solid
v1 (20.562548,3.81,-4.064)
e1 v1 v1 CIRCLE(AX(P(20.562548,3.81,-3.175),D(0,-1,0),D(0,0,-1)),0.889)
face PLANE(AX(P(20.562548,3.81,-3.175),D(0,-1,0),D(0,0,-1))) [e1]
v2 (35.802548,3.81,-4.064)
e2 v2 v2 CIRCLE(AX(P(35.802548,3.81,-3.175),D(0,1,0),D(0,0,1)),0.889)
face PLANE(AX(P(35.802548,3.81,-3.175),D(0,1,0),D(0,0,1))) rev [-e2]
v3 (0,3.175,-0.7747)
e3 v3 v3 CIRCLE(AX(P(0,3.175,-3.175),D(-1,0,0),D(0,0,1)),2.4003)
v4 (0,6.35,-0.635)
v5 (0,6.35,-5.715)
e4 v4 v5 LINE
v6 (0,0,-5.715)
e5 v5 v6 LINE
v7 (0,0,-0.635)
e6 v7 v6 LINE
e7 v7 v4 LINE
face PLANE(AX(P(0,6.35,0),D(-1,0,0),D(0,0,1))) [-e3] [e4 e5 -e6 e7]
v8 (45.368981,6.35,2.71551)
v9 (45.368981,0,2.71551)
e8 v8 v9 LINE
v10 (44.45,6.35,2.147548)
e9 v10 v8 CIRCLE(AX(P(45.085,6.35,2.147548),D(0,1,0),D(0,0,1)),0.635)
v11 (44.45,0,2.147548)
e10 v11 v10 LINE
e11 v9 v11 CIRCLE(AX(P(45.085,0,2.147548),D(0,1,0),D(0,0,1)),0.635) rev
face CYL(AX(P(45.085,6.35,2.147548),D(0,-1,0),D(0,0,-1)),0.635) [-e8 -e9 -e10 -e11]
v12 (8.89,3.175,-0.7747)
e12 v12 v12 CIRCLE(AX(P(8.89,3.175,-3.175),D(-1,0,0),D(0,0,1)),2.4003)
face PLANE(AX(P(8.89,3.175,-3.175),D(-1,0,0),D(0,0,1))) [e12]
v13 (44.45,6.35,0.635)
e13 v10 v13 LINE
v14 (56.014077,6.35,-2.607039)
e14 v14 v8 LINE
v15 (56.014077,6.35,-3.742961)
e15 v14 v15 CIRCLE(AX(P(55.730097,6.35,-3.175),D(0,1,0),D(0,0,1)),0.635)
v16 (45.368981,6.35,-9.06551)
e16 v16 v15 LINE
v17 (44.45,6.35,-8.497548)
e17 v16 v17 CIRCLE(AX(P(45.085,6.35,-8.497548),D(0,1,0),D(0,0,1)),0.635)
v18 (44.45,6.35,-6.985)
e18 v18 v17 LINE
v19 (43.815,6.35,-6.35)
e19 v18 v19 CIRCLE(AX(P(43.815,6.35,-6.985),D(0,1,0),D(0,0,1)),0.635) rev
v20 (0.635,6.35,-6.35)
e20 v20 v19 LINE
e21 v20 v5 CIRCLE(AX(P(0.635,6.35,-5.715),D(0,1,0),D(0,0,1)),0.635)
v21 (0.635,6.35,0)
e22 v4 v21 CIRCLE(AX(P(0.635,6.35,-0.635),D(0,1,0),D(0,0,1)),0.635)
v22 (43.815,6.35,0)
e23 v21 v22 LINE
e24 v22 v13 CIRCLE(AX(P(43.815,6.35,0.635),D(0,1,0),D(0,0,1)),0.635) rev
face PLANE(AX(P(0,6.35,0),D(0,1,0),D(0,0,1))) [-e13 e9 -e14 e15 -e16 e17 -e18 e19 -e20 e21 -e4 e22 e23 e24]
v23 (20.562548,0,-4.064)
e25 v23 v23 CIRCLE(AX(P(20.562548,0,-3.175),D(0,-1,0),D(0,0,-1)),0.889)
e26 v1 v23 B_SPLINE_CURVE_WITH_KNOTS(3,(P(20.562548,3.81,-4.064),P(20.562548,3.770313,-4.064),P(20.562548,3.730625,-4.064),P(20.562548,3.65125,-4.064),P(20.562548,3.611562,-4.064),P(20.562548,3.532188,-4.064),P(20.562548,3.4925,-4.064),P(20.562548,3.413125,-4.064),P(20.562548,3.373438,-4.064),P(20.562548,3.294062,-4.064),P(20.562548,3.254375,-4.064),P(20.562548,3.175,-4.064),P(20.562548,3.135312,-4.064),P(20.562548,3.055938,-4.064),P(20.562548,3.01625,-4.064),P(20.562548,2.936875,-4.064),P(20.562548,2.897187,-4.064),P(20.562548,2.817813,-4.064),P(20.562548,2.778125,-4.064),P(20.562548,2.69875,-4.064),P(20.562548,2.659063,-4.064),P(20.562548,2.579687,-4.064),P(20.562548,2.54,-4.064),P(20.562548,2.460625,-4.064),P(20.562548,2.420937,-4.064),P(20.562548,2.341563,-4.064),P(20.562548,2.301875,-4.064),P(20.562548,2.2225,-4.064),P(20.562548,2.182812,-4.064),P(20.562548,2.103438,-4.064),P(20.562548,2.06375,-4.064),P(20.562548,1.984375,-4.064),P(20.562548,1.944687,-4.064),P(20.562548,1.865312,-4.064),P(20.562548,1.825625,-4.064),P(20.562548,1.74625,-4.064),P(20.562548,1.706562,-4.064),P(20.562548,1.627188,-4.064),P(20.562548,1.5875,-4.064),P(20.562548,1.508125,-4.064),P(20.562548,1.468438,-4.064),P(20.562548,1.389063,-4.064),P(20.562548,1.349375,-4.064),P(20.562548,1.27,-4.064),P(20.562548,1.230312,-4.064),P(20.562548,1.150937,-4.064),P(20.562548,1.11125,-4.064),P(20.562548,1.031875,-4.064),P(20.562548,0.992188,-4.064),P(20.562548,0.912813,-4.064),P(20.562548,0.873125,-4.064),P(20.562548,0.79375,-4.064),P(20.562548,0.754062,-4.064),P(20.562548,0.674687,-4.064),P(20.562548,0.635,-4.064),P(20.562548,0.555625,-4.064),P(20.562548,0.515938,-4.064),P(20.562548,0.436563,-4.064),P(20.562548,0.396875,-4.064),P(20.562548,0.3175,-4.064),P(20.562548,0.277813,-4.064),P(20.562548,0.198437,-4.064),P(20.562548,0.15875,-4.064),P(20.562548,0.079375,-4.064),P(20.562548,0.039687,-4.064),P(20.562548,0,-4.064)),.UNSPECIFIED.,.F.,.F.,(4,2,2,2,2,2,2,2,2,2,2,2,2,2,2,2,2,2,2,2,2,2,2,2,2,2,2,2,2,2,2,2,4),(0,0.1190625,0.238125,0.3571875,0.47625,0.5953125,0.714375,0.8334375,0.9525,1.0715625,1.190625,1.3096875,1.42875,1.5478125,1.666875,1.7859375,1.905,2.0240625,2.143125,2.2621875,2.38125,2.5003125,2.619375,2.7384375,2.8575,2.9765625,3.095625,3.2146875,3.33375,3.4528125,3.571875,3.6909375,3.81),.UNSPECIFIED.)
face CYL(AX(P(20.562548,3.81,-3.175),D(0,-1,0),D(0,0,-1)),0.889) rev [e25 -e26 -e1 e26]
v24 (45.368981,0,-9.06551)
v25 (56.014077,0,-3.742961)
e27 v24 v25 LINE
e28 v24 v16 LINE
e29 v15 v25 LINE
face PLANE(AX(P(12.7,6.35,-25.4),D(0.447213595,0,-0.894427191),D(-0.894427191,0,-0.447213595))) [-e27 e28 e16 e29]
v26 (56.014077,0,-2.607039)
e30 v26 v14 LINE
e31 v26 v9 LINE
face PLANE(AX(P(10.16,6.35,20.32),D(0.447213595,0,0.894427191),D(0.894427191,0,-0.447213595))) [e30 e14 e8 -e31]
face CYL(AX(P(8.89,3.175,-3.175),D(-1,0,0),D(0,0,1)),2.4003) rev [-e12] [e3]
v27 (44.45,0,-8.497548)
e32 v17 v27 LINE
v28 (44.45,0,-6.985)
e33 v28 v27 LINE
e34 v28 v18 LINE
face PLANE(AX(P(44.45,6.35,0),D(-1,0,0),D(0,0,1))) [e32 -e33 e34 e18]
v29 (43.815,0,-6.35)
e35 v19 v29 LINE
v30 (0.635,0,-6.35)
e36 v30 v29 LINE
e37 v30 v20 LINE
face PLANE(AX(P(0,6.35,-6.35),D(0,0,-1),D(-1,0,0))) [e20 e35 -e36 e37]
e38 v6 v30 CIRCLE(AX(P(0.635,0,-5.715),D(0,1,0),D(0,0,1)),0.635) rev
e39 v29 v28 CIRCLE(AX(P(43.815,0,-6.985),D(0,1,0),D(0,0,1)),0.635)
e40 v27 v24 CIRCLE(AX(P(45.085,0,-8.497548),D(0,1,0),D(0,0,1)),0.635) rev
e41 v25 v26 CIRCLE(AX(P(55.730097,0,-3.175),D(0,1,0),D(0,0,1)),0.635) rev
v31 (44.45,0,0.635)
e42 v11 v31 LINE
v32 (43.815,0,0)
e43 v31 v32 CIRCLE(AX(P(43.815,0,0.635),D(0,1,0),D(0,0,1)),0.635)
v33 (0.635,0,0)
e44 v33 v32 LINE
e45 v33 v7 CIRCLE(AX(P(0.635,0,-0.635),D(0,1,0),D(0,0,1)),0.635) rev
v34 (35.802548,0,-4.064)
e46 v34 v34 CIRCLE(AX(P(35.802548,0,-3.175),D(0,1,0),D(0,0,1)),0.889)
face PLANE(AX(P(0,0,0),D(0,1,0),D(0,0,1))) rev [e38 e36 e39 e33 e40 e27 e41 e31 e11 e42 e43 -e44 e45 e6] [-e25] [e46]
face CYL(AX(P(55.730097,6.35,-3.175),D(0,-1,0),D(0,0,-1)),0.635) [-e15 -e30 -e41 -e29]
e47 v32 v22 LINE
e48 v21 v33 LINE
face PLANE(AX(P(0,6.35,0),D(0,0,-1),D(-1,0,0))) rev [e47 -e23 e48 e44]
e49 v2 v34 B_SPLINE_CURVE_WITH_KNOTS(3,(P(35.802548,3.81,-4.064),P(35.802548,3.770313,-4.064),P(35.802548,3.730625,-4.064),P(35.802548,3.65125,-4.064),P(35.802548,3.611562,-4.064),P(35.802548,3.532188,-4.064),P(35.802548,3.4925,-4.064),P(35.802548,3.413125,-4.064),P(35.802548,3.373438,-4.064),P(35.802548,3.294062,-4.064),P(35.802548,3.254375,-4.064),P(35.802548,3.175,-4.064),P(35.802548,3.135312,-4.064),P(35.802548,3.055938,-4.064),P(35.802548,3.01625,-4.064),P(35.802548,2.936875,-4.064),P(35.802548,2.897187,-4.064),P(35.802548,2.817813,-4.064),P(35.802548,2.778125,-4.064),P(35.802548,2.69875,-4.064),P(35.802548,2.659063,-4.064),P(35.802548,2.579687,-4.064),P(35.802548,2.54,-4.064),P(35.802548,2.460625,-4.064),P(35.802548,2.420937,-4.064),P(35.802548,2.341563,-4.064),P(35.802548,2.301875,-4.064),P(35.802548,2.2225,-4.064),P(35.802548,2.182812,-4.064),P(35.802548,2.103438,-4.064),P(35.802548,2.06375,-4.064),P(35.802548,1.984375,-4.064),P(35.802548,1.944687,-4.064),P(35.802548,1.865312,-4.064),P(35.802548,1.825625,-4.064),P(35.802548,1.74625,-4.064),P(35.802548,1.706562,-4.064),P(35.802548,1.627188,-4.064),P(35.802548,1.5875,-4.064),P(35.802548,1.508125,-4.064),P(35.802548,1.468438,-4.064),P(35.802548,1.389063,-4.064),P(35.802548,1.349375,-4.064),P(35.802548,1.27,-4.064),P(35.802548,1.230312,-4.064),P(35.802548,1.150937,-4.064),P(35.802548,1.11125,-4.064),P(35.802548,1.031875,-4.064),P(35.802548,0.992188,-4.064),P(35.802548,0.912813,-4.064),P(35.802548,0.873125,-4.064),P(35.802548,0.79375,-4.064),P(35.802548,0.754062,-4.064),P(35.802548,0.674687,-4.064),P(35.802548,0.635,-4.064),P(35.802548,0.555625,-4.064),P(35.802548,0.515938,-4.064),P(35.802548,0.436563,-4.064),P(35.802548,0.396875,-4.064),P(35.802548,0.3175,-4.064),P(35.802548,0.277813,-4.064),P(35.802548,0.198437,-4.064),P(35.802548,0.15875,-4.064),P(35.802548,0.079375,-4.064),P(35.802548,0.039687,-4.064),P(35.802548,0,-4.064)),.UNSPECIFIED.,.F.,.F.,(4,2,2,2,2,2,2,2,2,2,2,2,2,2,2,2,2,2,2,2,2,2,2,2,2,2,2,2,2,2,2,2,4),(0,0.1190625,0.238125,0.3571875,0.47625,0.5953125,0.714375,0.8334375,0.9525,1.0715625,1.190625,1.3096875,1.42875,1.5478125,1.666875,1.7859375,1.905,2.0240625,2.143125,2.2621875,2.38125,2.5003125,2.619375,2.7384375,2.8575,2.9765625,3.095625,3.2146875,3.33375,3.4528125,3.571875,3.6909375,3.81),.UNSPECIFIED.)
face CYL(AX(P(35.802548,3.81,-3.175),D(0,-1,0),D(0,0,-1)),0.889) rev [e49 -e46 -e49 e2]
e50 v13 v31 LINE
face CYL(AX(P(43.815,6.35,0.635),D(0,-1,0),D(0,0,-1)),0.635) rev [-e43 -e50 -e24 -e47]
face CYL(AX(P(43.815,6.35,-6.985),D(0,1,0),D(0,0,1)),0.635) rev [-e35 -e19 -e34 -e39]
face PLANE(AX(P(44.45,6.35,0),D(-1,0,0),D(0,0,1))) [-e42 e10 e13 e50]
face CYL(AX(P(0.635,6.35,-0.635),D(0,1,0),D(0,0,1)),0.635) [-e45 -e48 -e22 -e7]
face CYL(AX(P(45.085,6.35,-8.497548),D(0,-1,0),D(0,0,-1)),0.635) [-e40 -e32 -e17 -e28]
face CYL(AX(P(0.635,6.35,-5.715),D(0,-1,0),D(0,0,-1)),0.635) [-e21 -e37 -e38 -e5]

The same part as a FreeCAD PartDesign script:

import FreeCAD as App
import Part
import Sketcher
Q = App.Units.Quantity


def edges_at(feature, points):
    """Names of the edges that pass closest to the given points."""
    edges = feature.Shape.Edges
    near = lambda p: min(range(len(edges)), key=lambda i: edges[i].distToShape(Part.Vertex(*p))[0])
    return sorted({f"Edge{near(p) + 1}" for p in points})


def add_polygon(sketch, points):
    """Adds a closed chain of lines whose ends are joined by coincident constraints."""
    first, n = sketch.GeometryCount, len(points)
    for a, b in zip(points, points[1:] + points[:1]):
        sketch.addGeometry(Part.LineSegment(App.Vector(*a, 0), App.Vector(*b, 0)), False)
    for i in range(n):
        sketch.addConstraint(Sketcher.Constraint("Coincident", first + i, 2, first + (i + 1) % n, 1))

doc = App.newDocument("Part")
body = doc.addObject("PartDesign::Body", "Body")

sketch1 = body.newObject("Sketcher::SketchObject", "Sketch")
sketch1.AttachmentSupport = (doc.getObject("XZ_Plane"), [""])
sketch1.MapMode = "FlatFace"
add_polygon(sketch1, [(0, -6.3), (0, 0), (44.5, 0), (44.5, 3.2), (57.1, -3.2), (44.5, -9.5), (44.5, -6.3)])
sketch1.addConstraint([
    Sketcher.Constraint("Vertical", 0),
    Sketcher.Constraint("Horizontal", 1),
    Sketcher.Constraint("Vertical", 2),
    Sketcher.Constraint("Vertical", 5),
    Sketcher.Constraint("Horizontal", 6),
    Sketcher.Constraint("Coincident", 0, 2, -1, 1),
    Sketcher.Constraint("Vertical", 2, 2, 4, 2),
    Sketcher.Constraint("Equal", 2, 5),
    Sketcher.Constraint("Equal", 3, 4),
    Sketcher.Constraint("DistanceX", 1, 1, 1, 2, Q("1.75 in")),
    Sketcher.Constraint("DistanceY", 0, 1, 0, 2, Q("0.25 in")),
    Sketcher.Constraint("DistanceX", 1, 2, 3, 2, Q("0.5 in")),
    Sketcher.Constraint("DistanceY", 4, 2, 2, 2, Q("0.5 in")),
])
pad1 = body.newObject("PartDesign::Pad", "Pad")
pad1.Profile = sketch1
pad1.Length = Q("0.25 in")
pad1.Reversed = True

sketch2 = body.newObject("Sketcher::SketchObject", "Sketch001")
sketch2.AttachmentSupport = (doc.getObject("YZ_Plane"), [""])
sketch2.MapMode = "FlatFace"
sketch2.addGeometry(Part.Circle(App.Vector(3.2, -3.2, 0), App.Vector(0, 0, 1), 2.4), False)
sketch2.addConstraint([
    Sketcher.Constraint("Diameter", 0, Q("0.189 in")),
    Sketcher.Constraint("DistanceX", -1, 1, 0, 3, Q("0.125 in")),
    Sketcher.Constraint("DistanceY", 0, 3, -1, 1, Q("0.125 in")),
])
pocket1 = body.newObject("PartDesign::Pocket", "Pocket")
pocket1.Profile = sketch2
pocket1.Length = Q("0.35 in")
pocket1.Reversed = True
doc.recompute()

fillet = body.newObject("PartDesign::Fillet", "Fillet")
fillet.Base = (pocket1, edges_at(pocket1, [
    (0, 3.175, -6.35),
    (44.45, 3.175, -6.35),
    (44.45, 3.175, -9.525),
    (57.15, 3.175, -3.175),
    (44.45, 3.175, 3.175),
    (44.45, 3.175, 0),
    (0, 3.175, 0),
]))
fillet.Radius = Q("0.025 in")

sketch3 = body.newObject("Sketcher::SketchObject", "Sketch002")
sketch3.AttachmentSupport = (doc.getObject("XZ_Plane"), [""])
sketch3.MapMode = "FlatFace"
sketch3.addGeometry([
    Part.Circle(App.Vector(20.6, -3.2, 0), App.Vector(0, 0, 1), 0.9),
    Part.Circle(App.Vector(35.8, -3.2, 0), App.Vector(0, 0, 1), 0.9),
], False)
sketch3.addConstraint([
    Sketcher.Constraint("Equal", 0, 1),
    Sketcher.Constraint("Horizontal", 0, 3, 1, 3),
    Sketcher.Constraint("Diameter", 0, Q("0.07 in")),
    Sketcher.Constraint("DistanceX", 0, 3, 1, 3, Q("0.6 in")),
    Sketcher.Constraint("DistanceY", 0, 3, -1, 1, Q("0.125 in")),
    Sketcher.Constraint("DistanceX", -1, 1, 0, 3, 20.562548),
])
pocket2 = body.newObject("PartDesign::Pocket", "Pocket001")
pocket2.Profile = sketch3
pocket2.Length = Q("0.15 in")

doc.recompute()
